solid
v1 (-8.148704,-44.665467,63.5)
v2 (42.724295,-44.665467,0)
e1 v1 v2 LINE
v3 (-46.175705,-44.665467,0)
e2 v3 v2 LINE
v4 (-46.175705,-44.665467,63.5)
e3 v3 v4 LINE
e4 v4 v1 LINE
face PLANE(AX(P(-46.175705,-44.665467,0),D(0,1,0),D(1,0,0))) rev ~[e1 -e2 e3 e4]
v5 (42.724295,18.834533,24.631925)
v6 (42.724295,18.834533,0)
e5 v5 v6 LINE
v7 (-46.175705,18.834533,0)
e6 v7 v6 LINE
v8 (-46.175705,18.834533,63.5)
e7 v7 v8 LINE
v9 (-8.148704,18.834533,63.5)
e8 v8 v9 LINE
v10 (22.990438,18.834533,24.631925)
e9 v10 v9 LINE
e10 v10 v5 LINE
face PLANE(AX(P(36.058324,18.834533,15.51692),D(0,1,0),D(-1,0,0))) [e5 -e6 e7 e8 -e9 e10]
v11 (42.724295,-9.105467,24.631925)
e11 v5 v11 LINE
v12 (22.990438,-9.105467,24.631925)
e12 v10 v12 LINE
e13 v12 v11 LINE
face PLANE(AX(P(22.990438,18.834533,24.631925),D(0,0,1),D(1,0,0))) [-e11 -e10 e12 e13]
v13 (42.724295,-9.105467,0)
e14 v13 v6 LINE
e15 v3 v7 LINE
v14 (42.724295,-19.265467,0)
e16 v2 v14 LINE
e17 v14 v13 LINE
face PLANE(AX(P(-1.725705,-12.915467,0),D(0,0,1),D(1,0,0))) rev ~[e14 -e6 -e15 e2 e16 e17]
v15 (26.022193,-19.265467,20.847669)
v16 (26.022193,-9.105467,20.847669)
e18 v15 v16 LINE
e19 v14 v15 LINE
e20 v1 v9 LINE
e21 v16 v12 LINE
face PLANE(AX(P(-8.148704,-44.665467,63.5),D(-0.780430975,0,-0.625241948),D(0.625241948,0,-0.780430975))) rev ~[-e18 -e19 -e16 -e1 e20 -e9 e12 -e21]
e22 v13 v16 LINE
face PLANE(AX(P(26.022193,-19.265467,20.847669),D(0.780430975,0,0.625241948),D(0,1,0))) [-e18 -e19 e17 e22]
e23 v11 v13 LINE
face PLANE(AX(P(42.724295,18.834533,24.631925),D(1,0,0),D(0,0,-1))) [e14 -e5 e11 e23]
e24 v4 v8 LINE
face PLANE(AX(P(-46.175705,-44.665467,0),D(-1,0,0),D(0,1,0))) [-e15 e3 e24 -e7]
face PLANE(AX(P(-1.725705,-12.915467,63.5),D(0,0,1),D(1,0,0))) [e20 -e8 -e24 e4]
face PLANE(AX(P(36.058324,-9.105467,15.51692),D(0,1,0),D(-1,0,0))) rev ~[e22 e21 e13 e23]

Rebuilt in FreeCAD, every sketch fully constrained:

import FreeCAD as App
import Part
import Sketcher
from FreeCAD import Vector
Q = App.Units.Quantity

doc = App.newDocument("Part")
body = doc.addObject("PartDesign::Body", "Body")

sketch1 = body.newObject("Sketcher::SketchObject", "Sketch")
sketch1.AttachmentSupport = (doc.getObject("XY_Plane"), [""])
sketch1.MapMode = "FlatFace"
sketch1.addGeometry([
    Part.LineSegment(Vector(-46.175705, 18.834533, 0), Vector(-46.175705, -44.665467, 0)),
    Part.LineSegment(Vector(-46.175705, -44.665467, 0), Vector(42.724295, -44.665467, 0)),
    Part.LineSegment(Vector(42.724295, -44.665467, 0), Vector(42.724295, 18.834533, 0)),
    Part.LineSegment(Vector(42.724295, 18.834533, 0), Vector(-46.175705, 18.834533, 0)),
], False)
sketch1.addConstraint([
    Sketcher.Constraint("Coincident", 0, 2, 1, 1),
    Sketcher.Constraint("Coincident", 1, 2, 2, 1),
    Sketcher.Constraint("Coincident", 2, 2, 3, 1),
    Sketcher.Constraint("Coincident", 3, 2, 0, 1),
    Sketcher.Constraint("Vertical", 0),
    Sketcher.Constraint("Horizontal", 1),
    Sketcher.Constraint("Vertical", 2),
    Sketcher.Constraint("Horizontal", 3),
    Sketcher.Constraint("DistanceX", 1, 1, 1, 2, Q("3.5 in")),
    Sketcher.Constraint("DistanceY", 0, 2, 0, 1, Q("2.5 in")),
    Sketcher.Constraint("DistanceX", 0, 2, -1, 1, 46.175705),
    Sketcher.Constraint("DistanceY", 0, 2, -1, 1, 44.665467),
])
pad1 = body.newObject("PartDesign::Pad", "Pad")
pad1.Profile = sketch1
pad1.Length = Q("2.5 in")

sketch2 = body.newObject("Sketcher::SketchObject", "Sketch001")
sketch2.AttachmentSupport = (doc.getObject("XZ_Plane"), [""])
sketch2.MapMode = "FlatFace"
sketch2.AttachmentOffset = App.Placement(Vector(0, 0, 44.665467), App.Rotation())
sketch2.addGeometry([
    Part.LineSegment(Vector(42.724295, 63.5, 0), Vector(-8.148704, 63.5, 0)),
    Part.LineSegment(Vector(-8.148704, 63.5, 0), Vector(42.724295, 0, 0)),
    Part.LineSegment(Vector(42.724295, 0, 0), Vector(42.724295, 63.5, 0)),
], False)
sketch2.addConstraint([
    Sketcher.Constraint("Coincident", 0, 2, 1, 1),
    Sketcher.Constraint("Coincident", 1, 2, 2, 1),
    Sketcher.Constraint("Coincident", 2, 2, 0, 1),
    Sketcher.Constraint("Horizontal", 0),
    Sketcher.Constraint("Vertical", 2),
    Sketcher.Constraint("PointOnObject", 1, 2, -1),
    Sketcher.Constraint("DistanceY", 2, 1, 2, 2, Q("2.5 in")),
    Sketcher.Constraint("DistanceX", 0, 2, 0, 1, 50.872998),
    Sketcher.Constraint("DistanceX", 0, 2, -1, 1, 8.148704),
])
pocket1 = body.newObject("PartDesign::Pocket", "Pocket")
pocket1.Profile = sketch2
pocket1.Type = "ThroughAll"

sketch3 = body.newObject("Sketcher::SketchObject", "Sketch002")
sketch3.Placement = App.Placement(Vector(26.022193, 0, 20.847669), App.Rotation(Vector(0, 1, 0), Vector(-0.625241948, 0, 0.780430975), Vector(0.780430975, 0, 0.625241948), "ZXY"))
sketch3.addGeometry([
    Part.LineSegment(Vector(-19.265467, 0, 0), Vector(-19.265467, -26.713021, 0)),
    Part.LineSegment(Vector(-19.265467, -26.713021, 0), Vector(18.834533, -26.713021, 0)),
    Part.LineSegment(Vector(18.834533, -26.713021, 0), Vector(18.834533, 0, 0)),
    Part.LineSegment(Vector(18.834533, 0, 0), Vector(-19.265467, 0, 0)),
], False)
sketch3.addConstraint([
    Sketcher.Constraint("Coincident", 0, 2, 1, 1),
    Sketcher.Constraint("Coincident", 1, 2, 2, 1),
    Sketcher.Constraint("Coincident", 2, 2, 3, 1),
    Sketcher.Constraint("Coincident", 3, 2, 0, 1),
    Sketcher.Constraint("Vertical", 0),
    Sketcher.Constraint("Horizontal", 1),
    Sketcher.Constraint("Vertical", 2),
    Sketcher.Constraint("Horizontal", 3),
    Sketcher.Constraint("PointOnObject", 2, 2, -1),
    Sketcher.Constraint("DistanceX", 1, 1, 1, 2, Q("1.5 in")),
    Sketcher.Constraint("DistanceY", 0, 2, 0, 1, 26.713021),
    Sketcher.Constraint("DistanceX", 0, 2, -1, 1, 19.265467),
])
pad2 = body.newObject("PartDesign::Pad", "Pad001")
pad2.Profile = sketch3
pad2.Length = Q("1 in")

sketch4 = body.newObject("Sketcher::SketchObject", "Sketch003")
sketch4.Placement = App.Placement(Vector(0, 0, 0), App.Rotation(Vector(0.780430975, 0, 0.625241948), Vector(0, 1, 0), Vector(-0.625241948, 0, 0.780430975), "ZXY"))
sketch4.addGeometry([
    Part.LineSegment(Vector(33.343363, 18.834533, 0), Vector(33.343363, -19.265467, 0)),
    Part.LineSegment(Vector(33.343363, -19.265467, 0), Vector(58.743363, -19.265467, 0)),
    Part.LineSegment(Vector(58.743363, -19.265467, 0), Vector(58.743363, 18.834533, 0)),
    Part.LineSegment(Vector(58.743363, 18.834533, 0), Vector(33.343363, 18.834533, 0)),
], False)
sketch4.addConstraint([
    Sketcher.Constraint("Coincident", 0, 2, 1, 1),
    Sketcher.Constraint("Coincident", 1, 2, 2, 1),
    Sketcher.Constraint("Coincident", 2, 2, 3, 1),
    Sketcher.Constraint("Coincident", 3, 2, 0, 1),
    Sketcher.Constraint("Vertical", 0),
    Sketcher.Constraint("Horizontal", 1),
    Sketcher.Constraint("Vertical", 2),
    Sketcher.Constraint("Horizontal", 3),
    Sketcher.Constraint("DistanceX", 1, 1, 1, 2, Q("1 in")),
    Sketcher.Constraint("DistanceY", 0, 2, 0, 1, Q("1.5 in")),
    Sketcher.Constraint("DistanceX", -1, 1, 0, 2, 33.343363),
    Sketcher.Constraint("DistanceY", 0, 2, -1, 1, 19.265467),
])
pocket2 = body.newObject("PartDesign::Pocket", "Pocket001")
pocket2.Profile = sketch4
pocket2.Length = Q("1.58 in")

sketch5 = body.newObject("Sketcher::SketchObject", "Sketch004")
sketch5.AttachmentSupport = (doc.getObject("XZ_Plane"), [""])
sketch5.MapMode = "FlatFace"
sketch5.AttachmentOffset = App.Placement(Vector(0, 0, -18.834533), App.Rotation())
sketch5.addGeometry([
    Part.LineSegment(Vector(42.724295, 0, 0), Vector(22.990438, 24.631925, 0)),
    Part.LineSegment(Vector(22.990438, 24.631925, 0), Vector(42.724295, 24.631925, 0)),
    Part.LineSegment(Vector(42.724295, 24.631925, 0), Vector(42.724295, 0, 0)),
], False)
sketch5.addConstraint([
    Sketcher.Constraint("Coincident", 0, 2, 1, 1),
    Sketcher.Constraint("Coincident", 1, 2, 2, 1),
    Sketcher.Constraint("Coincident", 2, 2, 0, 1),
    Sketcher.Constraint("Horizontal", 1),
    Sketcher.Constraint("Vertical", 2),
    Sketcher.Constraint("PointOnObject", 2, 2, -1),
    Sketcher.Constraint("DistanceX", 1, 1, 1, 2, 19.733856),
    Sketcher.Constraint("DistanceY", 2, 2, 2, 1, 24.631925),
    Sketcher.Constraint("DistanceX", -1, 1, 0, 2, 22.990438),
])
pad3 = body.newObject("PartDesign::Pad", "Pad002")
pad3.Profile = sketch5
pad3.Length = Q("1.1 in")

doc.recompute()
